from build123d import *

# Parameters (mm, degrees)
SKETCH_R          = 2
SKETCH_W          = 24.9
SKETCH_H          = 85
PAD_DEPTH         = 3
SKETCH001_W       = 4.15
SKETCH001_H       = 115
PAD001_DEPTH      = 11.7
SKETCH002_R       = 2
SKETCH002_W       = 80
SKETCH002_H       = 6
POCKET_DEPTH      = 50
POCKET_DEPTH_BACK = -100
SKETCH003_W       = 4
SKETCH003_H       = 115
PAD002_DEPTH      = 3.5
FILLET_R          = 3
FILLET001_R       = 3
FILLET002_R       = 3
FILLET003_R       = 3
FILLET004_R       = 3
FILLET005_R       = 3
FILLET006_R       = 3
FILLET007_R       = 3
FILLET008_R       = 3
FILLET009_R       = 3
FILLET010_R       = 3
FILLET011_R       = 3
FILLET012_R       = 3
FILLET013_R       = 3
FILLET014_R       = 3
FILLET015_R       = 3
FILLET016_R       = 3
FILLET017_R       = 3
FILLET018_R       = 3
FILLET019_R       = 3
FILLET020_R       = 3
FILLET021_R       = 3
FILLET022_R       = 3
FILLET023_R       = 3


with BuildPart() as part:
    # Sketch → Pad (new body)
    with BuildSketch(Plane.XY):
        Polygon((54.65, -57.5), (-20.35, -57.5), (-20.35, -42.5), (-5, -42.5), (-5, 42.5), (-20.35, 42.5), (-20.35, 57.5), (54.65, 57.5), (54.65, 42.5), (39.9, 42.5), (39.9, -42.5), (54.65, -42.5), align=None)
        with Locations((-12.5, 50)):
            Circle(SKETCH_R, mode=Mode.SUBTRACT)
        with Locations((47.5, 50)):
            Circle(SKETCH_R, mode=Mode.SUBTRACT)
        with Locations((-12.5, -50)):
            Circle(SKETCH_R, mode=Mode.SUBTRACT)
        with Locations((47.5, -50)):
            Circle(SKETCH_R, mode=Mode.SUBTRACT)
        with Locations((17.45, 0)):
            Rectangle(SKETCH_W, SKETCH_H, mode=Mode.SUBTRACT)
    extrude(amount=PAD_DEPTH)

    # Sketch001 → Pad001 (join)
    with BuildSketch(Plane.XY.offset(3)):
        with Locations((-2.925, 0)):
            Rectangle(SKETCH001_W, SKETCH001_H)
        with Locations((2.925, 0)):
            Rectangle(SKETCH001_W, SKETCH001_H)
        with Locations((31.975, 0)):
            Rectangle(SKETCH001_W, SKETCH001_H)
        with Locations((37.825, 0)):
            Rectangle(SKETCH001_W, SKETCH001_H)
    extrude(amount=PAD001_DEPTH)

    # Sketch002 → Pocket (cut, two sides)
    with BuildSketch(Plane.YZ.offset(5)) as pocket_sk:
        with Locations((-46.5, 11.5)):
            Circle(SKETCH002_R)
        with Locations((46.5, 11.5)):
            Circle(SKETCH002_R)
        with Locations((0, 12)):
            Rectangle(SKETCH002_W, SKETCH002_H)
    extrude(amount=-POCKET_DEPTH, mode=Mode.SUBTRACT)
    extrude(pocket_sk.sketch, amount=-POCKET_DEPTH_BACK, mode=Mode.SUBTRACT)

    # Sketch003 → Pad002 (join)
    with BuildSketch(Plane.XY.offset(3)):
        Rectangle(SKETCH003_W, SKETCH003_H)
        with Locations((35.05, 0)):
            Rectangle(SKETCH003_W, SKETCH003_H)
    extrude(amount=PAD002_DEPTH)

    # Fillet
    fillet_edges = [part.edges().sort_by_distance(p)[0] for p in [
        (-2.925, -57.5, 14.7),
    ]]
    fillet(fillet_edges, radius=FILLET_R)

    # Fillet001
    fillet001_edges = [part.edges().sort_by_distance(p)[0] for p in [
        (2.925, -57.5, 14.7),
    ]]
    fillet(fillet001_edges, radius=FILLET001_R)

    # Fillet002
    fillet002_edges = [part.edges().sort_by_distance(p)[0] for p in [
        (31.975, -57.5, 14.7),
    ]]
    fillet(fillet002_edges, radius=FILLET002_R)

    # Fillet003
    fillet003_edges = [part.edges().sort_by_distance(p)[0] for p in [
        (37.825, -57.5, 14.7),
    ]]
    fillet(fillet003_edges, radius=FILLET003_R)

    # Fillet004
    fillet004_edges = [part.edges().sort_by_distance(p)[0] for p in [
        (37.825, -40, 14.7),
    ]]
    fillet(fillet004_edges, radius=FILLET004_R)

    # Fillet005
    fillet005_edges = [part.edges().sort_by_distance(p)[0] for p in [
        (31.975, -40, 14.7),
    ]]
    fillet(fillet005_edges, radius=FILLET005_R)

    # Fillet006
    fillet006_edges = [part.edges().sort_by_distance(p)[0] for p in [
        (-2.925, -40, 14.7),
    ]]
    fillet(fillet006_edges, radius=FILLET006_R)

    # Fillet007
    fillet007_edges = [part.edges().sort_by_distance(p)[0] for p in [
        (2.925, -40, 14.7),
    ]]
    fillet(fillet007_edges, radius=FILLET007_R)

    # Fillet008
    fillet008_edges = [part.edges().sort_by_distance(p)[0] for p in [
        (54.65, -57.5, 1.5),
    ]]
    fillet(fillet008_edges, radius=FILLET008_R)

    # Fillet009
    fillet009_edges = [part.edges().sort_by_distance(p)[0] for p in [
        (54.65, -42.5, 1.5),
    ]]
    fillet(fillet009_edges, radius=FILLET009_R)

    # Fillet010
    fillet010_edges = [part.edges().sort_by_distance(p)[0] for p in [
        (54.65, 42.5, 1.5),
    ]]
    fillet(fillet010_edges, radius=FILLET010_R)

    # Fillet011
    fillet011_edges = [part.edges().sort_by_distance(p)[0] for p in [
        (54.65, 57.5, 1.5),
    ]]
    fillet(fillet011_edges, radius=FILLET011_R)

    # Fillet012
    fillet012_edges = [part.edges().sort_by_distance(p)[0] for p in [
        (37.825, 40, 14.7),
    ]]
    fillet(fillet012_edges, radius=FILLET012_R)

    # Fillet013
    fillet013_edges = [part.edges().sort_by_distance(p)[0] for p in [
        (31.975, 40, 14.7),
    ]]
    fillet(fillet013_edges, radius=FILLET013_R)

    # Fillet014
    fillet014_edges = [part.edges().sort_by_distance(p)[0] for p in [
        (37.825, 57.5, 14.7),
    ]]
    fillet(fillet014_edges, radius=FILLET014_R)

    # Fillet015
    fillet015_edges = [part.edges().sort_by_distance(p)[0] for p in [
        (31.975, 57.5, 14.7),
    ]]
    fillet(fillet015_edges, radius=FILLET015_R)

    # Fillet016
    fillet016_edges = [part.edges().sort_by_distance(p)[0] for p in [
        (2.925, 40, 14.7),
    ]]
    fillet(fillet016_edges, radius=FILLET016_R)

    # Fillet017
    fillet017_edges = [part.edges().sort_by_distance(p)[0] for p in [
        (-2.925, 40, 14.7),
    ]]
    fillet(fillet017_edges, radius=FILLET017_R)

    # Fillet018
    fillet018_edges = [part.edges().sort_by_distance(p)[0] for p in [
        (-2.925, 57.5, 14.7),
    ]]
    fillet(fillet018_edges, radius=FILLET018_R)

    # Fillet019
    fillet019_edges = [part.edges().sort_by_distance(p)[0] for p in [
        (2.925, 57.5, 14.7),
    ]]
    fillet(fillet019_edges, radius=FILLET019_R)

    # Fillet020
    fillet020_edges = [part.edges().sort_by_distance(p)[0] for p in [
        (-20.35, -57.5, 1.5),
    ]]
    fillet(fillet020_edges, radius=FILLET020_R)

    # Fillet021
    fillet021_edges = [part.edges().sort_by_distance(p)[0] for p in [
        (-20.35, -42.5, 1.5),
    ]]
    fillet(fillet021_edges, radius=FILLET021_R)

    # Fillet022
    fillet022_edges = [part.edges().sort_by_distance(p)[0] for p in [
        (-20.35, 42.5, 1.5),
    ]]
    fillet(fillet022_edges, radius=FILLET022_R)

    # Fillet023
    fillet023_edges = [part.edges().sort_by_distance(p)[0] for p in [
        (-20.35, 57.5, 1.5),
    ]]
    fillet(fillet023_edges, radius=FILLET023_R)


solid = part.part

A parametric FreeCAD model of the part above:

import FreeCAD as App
import Part
import Sketcher

V = App.Vector


def edges_at(feature, points):
    """Names of the edges that pass closest to the given points."""
    edges = feature.Shape.Edges
    near = lambda p: min(range(len(edges)), key=lambda i: edges[i].distToShape(Part.Vertex(*p))[0])
    return sorted({f"Edge{near(p) + 1}" for p in points})


def add_polygon(sketch, points):
    """Adds a closed chain of lines whose ends are joined by coincident constraints."""
    first, n = sketch.GeometryCount, len(points)
    for a, b in zip(points, points[1:] + points[:1]):
        sketch.addGeometry(Part.LineSegment(App.Vector(*a, 0), App.Vector(*b, 0)), False)
    for i in range(n):
        sketch.addConstraint(Sketcher.Constraint("Coincident", first + i, 2, first + (i + 1) % n, 1))

doc = App.newDocument("Part")
body = doc.addObject("PartDesign::Body", "Body")

sketch1 = body.newObject("Sketcher::SketchObject", "Sketch")
sketch1.AttachmentSupport = (doc.getObject("XY_Plane"), [""])
sketch1.MapMode = "FlatFace"
add_polygon(sketch1, [(-20.35, -57.5), (54.65, -57.5), (54.65, -42.5), (39.9, -42.5), (39.9, 42.5), (54.65, 42.5), (54.65, 57.5), (-20.35, 57.5), (-20.35, 42.5), (-5, 42.5), (-5, -42.5), (-20.35, -42.5)])
sketch1.addGeometry(Part.Circle(V(47.5, -50, 0), V(0, 0, 1), 2), False)
sketch1.addGeometry(Part.Circle(V(-12.5, -50, 0), V(0, 0, 1), 2), False)
sketch1.addGeometry(Part.Circle(V(47.5, 50, 0), V(0, 0, 1), 2), False)
add_polygon(sketch1, [(5, -42.5), (5, 42.5), (29.9, 42.5), (29.9, -42.5)])
sketch1.addGeometry(Part.Circle(V(-12.5, 50, 0), V(0, 0, 1), 2), False)
sketch1.addConstraint(Sketcher.Constraint("Horizontal", 0))
sketch1.addConstraint(Sketcher.Constraint("Vertical", 1))
sketch1.addConstraint(Sketcher.Constraint("Horizontal", 2))
sketch1.addConstraint(Sketcher.Constraint("Vertical", 3))
sketch1.addConstraint(Sketcher.Constraint("Horizontal", 4))
sketch1.addConstraint(Sketcher.Constraint("Vertical", 5))
sketch1.addConstraint(Sketcher.Constraint("Horizontal", 6))
sketch1.addConstraint(Sketcher.Constraint("Vertical", 7))
sketch1.addConstraint(Sketcher.Constraint("Horizontal", 8))
sketch1.addConstraint(Sketcher.Constraint("Vertical", 9))
sketch1.addConstraint(Sketcher.Constraint("Horizontal", 10))
sketch1.addConstraint(Sketcher.Constraint("Vertical", 11))
sketch1.addConstraint(Sketcher.Constraint("Vertical", 15))
sketch1.addConstraint(Sketcher.Constraint("Horizontal", 16))
sketch1.addConstraint(Sketcher.Constraint("Vertical", 17))
sketch1.addConstraint(Sketcher.Constraint("Horizontal", 18))
sketch1.addConstraint(Sketcher.Constraint("Equal", 12, 13))
sketch1.addConstraint(Sketcher.Constraint("Equal", 13, 14))
sketch1.addConstraint(Sketcher.Constraint("Equal", 14, 19))
sketch1.addConstraint(Sketcher.Constraint("Symmetric", 9, 2, 15, 2, -1, 1))
sketch1.addConstraint(Sketcher.Constraint("Symmetric", 12, 3, 14, 3, -1))
sketch1.addConstraint(Sketcher.Constraint("Symmetric", 13, 3, 19, 3, -1))
sketch1.addConstraint(Sketcher.Constraint("Symmetric", 1, 2, 4, 2, -1))
sketch1.addConstraint(Sketcher.Constraint("Symmetric", 7, 2, 10, 2, -1))
sketch1.addConstraint(Sketcher.Constraint("Horizontal", 12, 3, 13, 3))
sketch1.addConstraint(Sketcher.Constraint("Horizontal", 4, 2, 7, 2))
sketch1.addConstraint(Sketcher.Constraint("Horizontal", 10, 2, 17, 2))
sketch1.addConstraint(Sketcher.Constraint("Equal", 1, 5))
sketch1.addConstraint(Sketcher.Constraint("Diameter", 12, 4.0))
sketch1.addConstraint(Sketcher.Constraint("DistanceX", 0, 1, 0, 2, 75.0))
sketch1.addConstraint(Sketcher.Constraint("DistanceY", 1, 1, 1, 2, 15.0))
sketch1.addConstraint(Sketcher.Constraint("DistanceY", 3, 1, 3, 2, 85.0))
sketch1.addConstraint(Sketcher.Constraint("DistanceX", 16, 1, 16, 2, 24.9))
sketch1.addConstraint(Sketcher.Constraint("DistanceY", 12, 3, -1, 1, 50.0))
sketch1.addConstraint(Sketcher.Constraint("DistanceX", 8, 2, -1, 1, 5.0))
sketch1.addConstraint(Sketcher.Constraint("DistanceX", 13, 3, 12, 3, 60.0))
sketch1.addConstraint(Sketcher.Constraint("DistanceX", 16, 2, 3, 2, 10.0))
sketch1.addConstraint(Sketcher.Constraint("DistanceX", 2, 2, 2, 1, 14.75))
sketch1.addConstraint(Sketcher.Constraint("DistanceX", -1, 1, 12, 3, 47.5))
pad1 = body.newObject("PartDesign::Pad", "Pad")
pad1.Profile = sketch1
pad1.Length = 3

sketch2 = body.newObject("Sketcher::SketchObject", "Sketch001")
sketch2.AttachmentSupport = (doc.getObject("XY_Plane"), [""])
sketch2.MapMode = "FlatFace"
sketch2.AttachmentOffset = App.Placement(V(0, 0, 3), App.Rotation())
add_polygon(sketch2, [(-5, 57.5), (-5, -57.5), (-0.85, -57.5), (-0.85, 57.5)])
add_polygon(sketch2, [(0.85, 57.5), (0.85, -57.5), (5, -57.5), (5, 57.5)])
add_polygon(sketch2, [(29.9, 57.5), (29.9, -57.5), (34.05, -57.5), (34.05, 57.5)])
add_polygon(sketch2, [(35.75, 57.5), (35.75, -57.5), (39.9, -57.5), (39.9, 57.5)])
sketch2.addConstraint(Sketcher.Constraint("Vertical", 0))
sketch2.addConstraint(Sketcher.Constraint("Horizontal", 1))
sketch2.addConstraint(Sketcher.Constraint("Vertical", 2))
sketch2.addConstraint(Sketcher.Constraint("Horizontal", 3))
sketch2.addConstraint(Sketcher.Constraint("Vertical", 4))
sketch2.addConstraint(Sketcher.Constraint("Horizontal", 5))
sketch2.addConstraint(Sketcher.Constraint("Vertical", 6))
sketch2.addConstraint(Sketcher.Constraint("Horizontal", 7))
sketch2.addConstraint(Sketcher.Constraint("Vertical", 8))
sketch2.addConstraint(Sketcher.Constraint("Horizontal", 9))
sketch2.addConstraint(Sketcher.Constraint("Vertical", 10))
sketch2.addConstraint(Sketcher.Constraint("Horizontal", 11))
sketch2.addConstraint(Sketcher.Constraint("Vertical", 12))
sketch2.addConstraint(Sketcher.Constraint("Horizontal", 13))
sketch2.addConstraint(Sketcher.Constraint("Vertical", 14))
sketch2.addConstraint(Sketcher.Constraint("Horizontal", 15))
sketch2.addConstraint(Sketcher.Constraint("Symmetric", 2, 2, 4, 2, -1, 1))
sketch2.addConstraint(Sketcher.Constraint("Symmetric", 0, 2, 6, 2, -1, 1))
sketch2.addConstraint(Sketcher.Constraint("Horizontal", 1, 2, 4, 2))
sketch2.addConstraint(Sketcher.Constraint("Horizontal", 5, 2, 8, 2))
sketch2.addConstraint(Sketcher.Constraint("Horizontal", 7, 2, 10, 2))
sketch2.addConstraint(Sketcher.Constraint("Horizontal", 9, 2, 12, 2))
sketch2.addConstraint(Sketcher.Constraint("Horizontal", 11, 2, 14, 2))
sketch2.addConstraint(Sketcher.Constraint("Equal", 7, 9))
sketch2.addConstraint(Sketcher.Constraint("Equal", 11, 13))
sketch2.addConstraint(Sketcher.Constraint("DistanceY", 0, 2, 0, 1, 115.0))
sketch2.addConstraint(Sketcher.Constraint("DistanceX", 0, 2, -1, 1, 5.0))
sketch2.addConstraint(Sketcher.Constraint("DistanceX", 8, 2, 13, 2, 10.0))
sketch2.addConstraint(Sketcher.Constraint("DistanceX", 1, 1, 1, 2, 4.15))
sketch2.addConstraint(Sketcher.Constraint("DistanceX", -1, 1, 8, 2, 29.9))
pad2 = body.newObject("PartDesign::Pad", "Pad001")
pad2.Profile = sketch2
pad2.Length = 11.7

sketch3 = body.newObject("Sketcher::SketchObject", "Sketch002")
sketch3.AttachmentSupport = (doc.getObject("YZ_Plane"), [""])
sketch3.MapMode = "FlatFace"
sketch3.AttachmentOffset = App.Placement(V(0, 0, 5), App.Rotation())
sketch3.addGeometry(Part.Circle(V(-46.5, 11.5, 0), V(0, 0, 1), 2), False)
sketch3.addGeometry(Part.Circle(V(46.5, 11.5, 0), V(0, 0, 1), 2), False)
add_polygon(sketch3, [(-40, 15), (-40, 9), (40, 9), (40, 15)])
sketch3.addConstraint(Sketcher.Constraint("Vertical", 2))
sketch3.addConstraint(Sketcher.Constraint("Horizontal", 3))
sketch3.addConstraint(Sketcher.Constraint("Vertical", 4))
sketch3.addConstraint(Sketcher.Constraint("Horizontal", 5))
sketch3.addConstraint(Sketcher.Constraint("Equal", 0, 1))
sketch3.addConstraint(Sketcher.Constraint("Symmetric", 0, 3, 1, 3, -2))
sketch3.addConstraint(Sketcher.Constraint("Diameter", 0, 4.0))
sketch3.addConstraint(Sketcher.Constraint("DistanceX", 3, 1, 3, 2, 80.0))
sketch3.addConstraint(Sketcher.Constraint("DistanceY", 2, 2, 2, 1, 6.0))
sketch3.addConstraint(Sketcher.Constraint("DistanceX", 2, 2, -1, 1, 40.0))
sketch3.addConstraint(Sketcher.Constraint("DistanceY", -1, 1, 2, 2, 9.0))
sketch3.addConstraint(Sketcher.Constraint("DistanceX", 0, 3, 1, 3, 93.0))
sketch3.addConstraint(Sketcher.Constraint("DistanceY", -1, 1, 0, 3, 11.5))
pocket1 = body.newObject("PartDesign::Pocket", "Pocket")
pocket1.Profile = sketch3
pocket1.Type = "ThroughAll"
pocket1.Midplane = True

sketch4 = body.newObject("Sketcher::SketchObject", "Sketch003")
sketch4.AttachmentSupport = (doc.getObject("XY_Plane"), [""])
sketch4.MapMode = "FlatFace"
sketch4.AttachmentOffset = App.Placement(V(0, 0, 3), App.Rotation())
add_polygon(sketch4, [(-2, 57.5), (-2, -57.5), (2, -57.5), (2, 57.5)])
add_polygon(sketch4, [(33.05, 57.5), (33.05, -57.5), (37.05, -57.5), (37.05, 57.5)])
sketch4.addConstraint(Sketcher.Constraint("Vertical", 0))
sketch4.addConstraint(Sketcher.Constraint("Horizontal", 1))
sketch4.addConstraint(Sketcher.Constraint("Vertical", 2))
sketch4.addConstraint(Sketcher.Constraint("Horizontal", 3))
sketch4.addConstraint(Sketcher.Constraint("Vertical", 4))
sketch4.addConstraint(Sketcher.Constraint("Horizontal", 5))
sketch4.addConstraint(Sketcher.Constraint("Vertical", 6))
sketch4.addConstraint(Sketcher.Constraint("Horizontal", 7))
sketch4.addConstraint(Sketcher.Constraint("Symmetric", 0, 2, 2, 2, -1, 1))
sketch4.addConstraint(Sketcher.Constraint("Horizontal", 1, 2, 4, 2))
sketch4.addConstraint(Sketcher.Constraint("Horizontal", 3, 2, 6, 2))
sketch4.addConstraint(Sketcher.Constraint("Equal", 3, 5))
sketch4.addConstraint(Sketcher.Constraint("DistanceX", 1, 1, 1, 2, 4.0))
sketch4.addConstraint(Sketcher.Constraint("DistanceY", 0, 2, 0, 1, 115.0))
sketch4.addConstraint(Sketcher.Constraint("DistanceX", -1, 1, 4, 2, 33.05))
pad3 = body.newObject("PartDesign::Pad", "Pad002")
pad3.Profile = sketch4
pad3.Length = 3.5
doc.recompute()

fillet = body.newObject("PartDesign::Fillet", "Fillet")
fillet.Base = (pad3, edges_at(pad3, [(-2.925, -57.5, 14.7)]))
fillet.Radius = 3
doc.recompute()

fillet2 = body.newObject("PartDesign::Fillet", "Fillet001")
fillet2.Base = (fillet, edges_at(fillet, [(2.925, -57.5, 14.7)]))
fillet2.Radius = 3
doc.recompute()

fillet3 = body.newObject("PartDesign::Fillet", "Fillet002")
fillet3.Base = (fillet2, edges_at(fillet2, [(31.975, -57.5, 14.7)]))
fillet3.Radius = 3
doc.recompute()

fillet4 = body.newObject("PartDesign::Fillet", "Fillet003")
fillet4.Base = (fillet3, edges_at(fillet3, [(37.825, -57.5, 14.7)]))
fillet4.Radius = 3
doc.recompute()

fillet5 = body.newObject("PartDesign::Fillet", "Fillet004")
fillet5.Base = (fillet4, edges_at(fillet4, [(37.825, -40, 14.7)]))
fillet5.Radius = 3
doc.recompute()

fillet6 = body.newObject("PartDesign::Fillet", "Fillet005")
fillet6.Base = (fillet5, edges_at(fillet5, [(31.975, -40, 14.7)]))
fillet6.Radius = 3
doc.recompute()

fillet7 = body.newObject("PartDesign::Fillet", "Fillet006")
fillet7.Base = (fillet6, edges_at(fillet6, [(-2.925, -40, 14.7)]))
fillet7.Radius = 3
doc.recompute()

fillet8 = body.newObject("PartDesign::Fillet", "Fillet007")
fillet8.Base = (fillet7, edges_at(fillet7, [(2.925, -40, 14.7)]))
fillet8.Radius = 3
doc.recompute()

fillet9 = body.newObject("PartDesign::Fillet", "Fillet008")
fillet9.Base = (fillet8, edges_at(fillet8, [(54.65, -57.5, 1.5)]))
fillet9.Radius = 3
doc.recompute()

fillet10 = body.newObject("PartDesign::Fillet", "Fillet009")
fillet10.Base = (fillet9, edges_at(fillet9, [(54.65, -42.5, 1.5)]))
fillet10.Radius = 3
doc.recompute()

fillet11 = body.newObject("PartDesign::Fillet", "Fillet010")
fillet11.Base = (fillet10, edges_at(fillet10, [(54.65, 42.5, 1.5)]))
fillet11.Radius = 3
doc.recompute()

fillet12 = body.newObject("PartDesign::Fillet", "Fillet011")
fillet12.Base = (fillet11, edges_at(fillet11, [(54.65, 57.5, 1.5)]))
fillet12.Radius = 3
doc.recompute()

fillet13 = body.newObject("PartDesign::Fillet", "Fillet012")
fillet13.Base = (fillet12, edges_at(fillet12, [(37.825, 40, 14.7)]))
fillet13.Radius = 3
doc.recompute()

fillet14 = body.newObject("PartDesign::Fillet", "Fillet013")
fillet14.Base = (fillet13, edges_at(fillet13, [(31.975, 40, 14.7)]))
fillet14.Radius = 3
doc.recompute()

fillet15 = body.newObject("PartDesign::Fillet", "Fillet014")
fillet15.Base = (fillet14, edges_at(fillet14, [(37.825, 57.5, 14.7)]))
fillet15.Radius = 3
doc.recompute()

fillet16 = body.newObject("PartDesign::Fillet", "Fillet015")
fillet16.Base = (fillet15, edges_at(fillet15, [(31.975, 57.5, 14.7)]))
fillet16.Radius = 3
doc.recompute()

fillet17 = body.newObject("PartDesign::Fillet", "Fillet016")
fillet17.Base = (fillet16, edges_at(fillet16, [(2.925, 40, 14.7)]))
fillet17.Radius = 3
doc.recompute()

fillet18 = body.newObject("PartDesign::Fillet", "Fillet017")
fillet18.Base = (fillet17, edges_at(fillet17, [(-2.925, 40, 14.7)]))
fillet18.Radius = 3
doc.recompute()

fillet19 = body.newObject("PartDesign::Fillet", "Fillet018")
fillet19.Base = (fillet18, edges_at(fillet18, [(-2.925, 57.5, 14.7)]))
fillet19.Radius = 3
doc.recompute()

fillet20 = body.newObject("PartDesign::Fillet", "Fillet019")
fillet20.Base = (fillet19, edges_at(fillet19, [(2.925, 57.5, 14.7)]))
fillet20.Radius = 3
doc.recompute()

fillet21 = body.newObject("PartDesign::Fillet", "Fillet020")
fillet21.Base = (fillet20, edges_at(fillet20, [(-20.35, -57.5, 1.5)]))
fillet21.Radius = 3
doc.recompute()

fillet22 = body.newObject("PartDesign::Fillet", "Fillet021")
fillet22.Base = (fillet21, edges_at(fillet21, [(-20.35, -42.5, 1.5)]))
fillet22.Radius = 3
doc.recompute()

fillet23 = body.newObject("PartDesign::Fillet", "Fillet022")
fillet23.Base = (fillet22, edges_at(fillet22, [(-20.35, 42.5, 1.5)]))
fillet23.Radius = 3
doc.recompute()

fillet24 = body.newObject("PartDesign::Fillet", "Fillet023")
fillet24.Base = (fillet23, edges_at(fillet23, [(-20.35, 57.5, 1.5)]))
fillet24.Radius = 3

doc.recompute()
